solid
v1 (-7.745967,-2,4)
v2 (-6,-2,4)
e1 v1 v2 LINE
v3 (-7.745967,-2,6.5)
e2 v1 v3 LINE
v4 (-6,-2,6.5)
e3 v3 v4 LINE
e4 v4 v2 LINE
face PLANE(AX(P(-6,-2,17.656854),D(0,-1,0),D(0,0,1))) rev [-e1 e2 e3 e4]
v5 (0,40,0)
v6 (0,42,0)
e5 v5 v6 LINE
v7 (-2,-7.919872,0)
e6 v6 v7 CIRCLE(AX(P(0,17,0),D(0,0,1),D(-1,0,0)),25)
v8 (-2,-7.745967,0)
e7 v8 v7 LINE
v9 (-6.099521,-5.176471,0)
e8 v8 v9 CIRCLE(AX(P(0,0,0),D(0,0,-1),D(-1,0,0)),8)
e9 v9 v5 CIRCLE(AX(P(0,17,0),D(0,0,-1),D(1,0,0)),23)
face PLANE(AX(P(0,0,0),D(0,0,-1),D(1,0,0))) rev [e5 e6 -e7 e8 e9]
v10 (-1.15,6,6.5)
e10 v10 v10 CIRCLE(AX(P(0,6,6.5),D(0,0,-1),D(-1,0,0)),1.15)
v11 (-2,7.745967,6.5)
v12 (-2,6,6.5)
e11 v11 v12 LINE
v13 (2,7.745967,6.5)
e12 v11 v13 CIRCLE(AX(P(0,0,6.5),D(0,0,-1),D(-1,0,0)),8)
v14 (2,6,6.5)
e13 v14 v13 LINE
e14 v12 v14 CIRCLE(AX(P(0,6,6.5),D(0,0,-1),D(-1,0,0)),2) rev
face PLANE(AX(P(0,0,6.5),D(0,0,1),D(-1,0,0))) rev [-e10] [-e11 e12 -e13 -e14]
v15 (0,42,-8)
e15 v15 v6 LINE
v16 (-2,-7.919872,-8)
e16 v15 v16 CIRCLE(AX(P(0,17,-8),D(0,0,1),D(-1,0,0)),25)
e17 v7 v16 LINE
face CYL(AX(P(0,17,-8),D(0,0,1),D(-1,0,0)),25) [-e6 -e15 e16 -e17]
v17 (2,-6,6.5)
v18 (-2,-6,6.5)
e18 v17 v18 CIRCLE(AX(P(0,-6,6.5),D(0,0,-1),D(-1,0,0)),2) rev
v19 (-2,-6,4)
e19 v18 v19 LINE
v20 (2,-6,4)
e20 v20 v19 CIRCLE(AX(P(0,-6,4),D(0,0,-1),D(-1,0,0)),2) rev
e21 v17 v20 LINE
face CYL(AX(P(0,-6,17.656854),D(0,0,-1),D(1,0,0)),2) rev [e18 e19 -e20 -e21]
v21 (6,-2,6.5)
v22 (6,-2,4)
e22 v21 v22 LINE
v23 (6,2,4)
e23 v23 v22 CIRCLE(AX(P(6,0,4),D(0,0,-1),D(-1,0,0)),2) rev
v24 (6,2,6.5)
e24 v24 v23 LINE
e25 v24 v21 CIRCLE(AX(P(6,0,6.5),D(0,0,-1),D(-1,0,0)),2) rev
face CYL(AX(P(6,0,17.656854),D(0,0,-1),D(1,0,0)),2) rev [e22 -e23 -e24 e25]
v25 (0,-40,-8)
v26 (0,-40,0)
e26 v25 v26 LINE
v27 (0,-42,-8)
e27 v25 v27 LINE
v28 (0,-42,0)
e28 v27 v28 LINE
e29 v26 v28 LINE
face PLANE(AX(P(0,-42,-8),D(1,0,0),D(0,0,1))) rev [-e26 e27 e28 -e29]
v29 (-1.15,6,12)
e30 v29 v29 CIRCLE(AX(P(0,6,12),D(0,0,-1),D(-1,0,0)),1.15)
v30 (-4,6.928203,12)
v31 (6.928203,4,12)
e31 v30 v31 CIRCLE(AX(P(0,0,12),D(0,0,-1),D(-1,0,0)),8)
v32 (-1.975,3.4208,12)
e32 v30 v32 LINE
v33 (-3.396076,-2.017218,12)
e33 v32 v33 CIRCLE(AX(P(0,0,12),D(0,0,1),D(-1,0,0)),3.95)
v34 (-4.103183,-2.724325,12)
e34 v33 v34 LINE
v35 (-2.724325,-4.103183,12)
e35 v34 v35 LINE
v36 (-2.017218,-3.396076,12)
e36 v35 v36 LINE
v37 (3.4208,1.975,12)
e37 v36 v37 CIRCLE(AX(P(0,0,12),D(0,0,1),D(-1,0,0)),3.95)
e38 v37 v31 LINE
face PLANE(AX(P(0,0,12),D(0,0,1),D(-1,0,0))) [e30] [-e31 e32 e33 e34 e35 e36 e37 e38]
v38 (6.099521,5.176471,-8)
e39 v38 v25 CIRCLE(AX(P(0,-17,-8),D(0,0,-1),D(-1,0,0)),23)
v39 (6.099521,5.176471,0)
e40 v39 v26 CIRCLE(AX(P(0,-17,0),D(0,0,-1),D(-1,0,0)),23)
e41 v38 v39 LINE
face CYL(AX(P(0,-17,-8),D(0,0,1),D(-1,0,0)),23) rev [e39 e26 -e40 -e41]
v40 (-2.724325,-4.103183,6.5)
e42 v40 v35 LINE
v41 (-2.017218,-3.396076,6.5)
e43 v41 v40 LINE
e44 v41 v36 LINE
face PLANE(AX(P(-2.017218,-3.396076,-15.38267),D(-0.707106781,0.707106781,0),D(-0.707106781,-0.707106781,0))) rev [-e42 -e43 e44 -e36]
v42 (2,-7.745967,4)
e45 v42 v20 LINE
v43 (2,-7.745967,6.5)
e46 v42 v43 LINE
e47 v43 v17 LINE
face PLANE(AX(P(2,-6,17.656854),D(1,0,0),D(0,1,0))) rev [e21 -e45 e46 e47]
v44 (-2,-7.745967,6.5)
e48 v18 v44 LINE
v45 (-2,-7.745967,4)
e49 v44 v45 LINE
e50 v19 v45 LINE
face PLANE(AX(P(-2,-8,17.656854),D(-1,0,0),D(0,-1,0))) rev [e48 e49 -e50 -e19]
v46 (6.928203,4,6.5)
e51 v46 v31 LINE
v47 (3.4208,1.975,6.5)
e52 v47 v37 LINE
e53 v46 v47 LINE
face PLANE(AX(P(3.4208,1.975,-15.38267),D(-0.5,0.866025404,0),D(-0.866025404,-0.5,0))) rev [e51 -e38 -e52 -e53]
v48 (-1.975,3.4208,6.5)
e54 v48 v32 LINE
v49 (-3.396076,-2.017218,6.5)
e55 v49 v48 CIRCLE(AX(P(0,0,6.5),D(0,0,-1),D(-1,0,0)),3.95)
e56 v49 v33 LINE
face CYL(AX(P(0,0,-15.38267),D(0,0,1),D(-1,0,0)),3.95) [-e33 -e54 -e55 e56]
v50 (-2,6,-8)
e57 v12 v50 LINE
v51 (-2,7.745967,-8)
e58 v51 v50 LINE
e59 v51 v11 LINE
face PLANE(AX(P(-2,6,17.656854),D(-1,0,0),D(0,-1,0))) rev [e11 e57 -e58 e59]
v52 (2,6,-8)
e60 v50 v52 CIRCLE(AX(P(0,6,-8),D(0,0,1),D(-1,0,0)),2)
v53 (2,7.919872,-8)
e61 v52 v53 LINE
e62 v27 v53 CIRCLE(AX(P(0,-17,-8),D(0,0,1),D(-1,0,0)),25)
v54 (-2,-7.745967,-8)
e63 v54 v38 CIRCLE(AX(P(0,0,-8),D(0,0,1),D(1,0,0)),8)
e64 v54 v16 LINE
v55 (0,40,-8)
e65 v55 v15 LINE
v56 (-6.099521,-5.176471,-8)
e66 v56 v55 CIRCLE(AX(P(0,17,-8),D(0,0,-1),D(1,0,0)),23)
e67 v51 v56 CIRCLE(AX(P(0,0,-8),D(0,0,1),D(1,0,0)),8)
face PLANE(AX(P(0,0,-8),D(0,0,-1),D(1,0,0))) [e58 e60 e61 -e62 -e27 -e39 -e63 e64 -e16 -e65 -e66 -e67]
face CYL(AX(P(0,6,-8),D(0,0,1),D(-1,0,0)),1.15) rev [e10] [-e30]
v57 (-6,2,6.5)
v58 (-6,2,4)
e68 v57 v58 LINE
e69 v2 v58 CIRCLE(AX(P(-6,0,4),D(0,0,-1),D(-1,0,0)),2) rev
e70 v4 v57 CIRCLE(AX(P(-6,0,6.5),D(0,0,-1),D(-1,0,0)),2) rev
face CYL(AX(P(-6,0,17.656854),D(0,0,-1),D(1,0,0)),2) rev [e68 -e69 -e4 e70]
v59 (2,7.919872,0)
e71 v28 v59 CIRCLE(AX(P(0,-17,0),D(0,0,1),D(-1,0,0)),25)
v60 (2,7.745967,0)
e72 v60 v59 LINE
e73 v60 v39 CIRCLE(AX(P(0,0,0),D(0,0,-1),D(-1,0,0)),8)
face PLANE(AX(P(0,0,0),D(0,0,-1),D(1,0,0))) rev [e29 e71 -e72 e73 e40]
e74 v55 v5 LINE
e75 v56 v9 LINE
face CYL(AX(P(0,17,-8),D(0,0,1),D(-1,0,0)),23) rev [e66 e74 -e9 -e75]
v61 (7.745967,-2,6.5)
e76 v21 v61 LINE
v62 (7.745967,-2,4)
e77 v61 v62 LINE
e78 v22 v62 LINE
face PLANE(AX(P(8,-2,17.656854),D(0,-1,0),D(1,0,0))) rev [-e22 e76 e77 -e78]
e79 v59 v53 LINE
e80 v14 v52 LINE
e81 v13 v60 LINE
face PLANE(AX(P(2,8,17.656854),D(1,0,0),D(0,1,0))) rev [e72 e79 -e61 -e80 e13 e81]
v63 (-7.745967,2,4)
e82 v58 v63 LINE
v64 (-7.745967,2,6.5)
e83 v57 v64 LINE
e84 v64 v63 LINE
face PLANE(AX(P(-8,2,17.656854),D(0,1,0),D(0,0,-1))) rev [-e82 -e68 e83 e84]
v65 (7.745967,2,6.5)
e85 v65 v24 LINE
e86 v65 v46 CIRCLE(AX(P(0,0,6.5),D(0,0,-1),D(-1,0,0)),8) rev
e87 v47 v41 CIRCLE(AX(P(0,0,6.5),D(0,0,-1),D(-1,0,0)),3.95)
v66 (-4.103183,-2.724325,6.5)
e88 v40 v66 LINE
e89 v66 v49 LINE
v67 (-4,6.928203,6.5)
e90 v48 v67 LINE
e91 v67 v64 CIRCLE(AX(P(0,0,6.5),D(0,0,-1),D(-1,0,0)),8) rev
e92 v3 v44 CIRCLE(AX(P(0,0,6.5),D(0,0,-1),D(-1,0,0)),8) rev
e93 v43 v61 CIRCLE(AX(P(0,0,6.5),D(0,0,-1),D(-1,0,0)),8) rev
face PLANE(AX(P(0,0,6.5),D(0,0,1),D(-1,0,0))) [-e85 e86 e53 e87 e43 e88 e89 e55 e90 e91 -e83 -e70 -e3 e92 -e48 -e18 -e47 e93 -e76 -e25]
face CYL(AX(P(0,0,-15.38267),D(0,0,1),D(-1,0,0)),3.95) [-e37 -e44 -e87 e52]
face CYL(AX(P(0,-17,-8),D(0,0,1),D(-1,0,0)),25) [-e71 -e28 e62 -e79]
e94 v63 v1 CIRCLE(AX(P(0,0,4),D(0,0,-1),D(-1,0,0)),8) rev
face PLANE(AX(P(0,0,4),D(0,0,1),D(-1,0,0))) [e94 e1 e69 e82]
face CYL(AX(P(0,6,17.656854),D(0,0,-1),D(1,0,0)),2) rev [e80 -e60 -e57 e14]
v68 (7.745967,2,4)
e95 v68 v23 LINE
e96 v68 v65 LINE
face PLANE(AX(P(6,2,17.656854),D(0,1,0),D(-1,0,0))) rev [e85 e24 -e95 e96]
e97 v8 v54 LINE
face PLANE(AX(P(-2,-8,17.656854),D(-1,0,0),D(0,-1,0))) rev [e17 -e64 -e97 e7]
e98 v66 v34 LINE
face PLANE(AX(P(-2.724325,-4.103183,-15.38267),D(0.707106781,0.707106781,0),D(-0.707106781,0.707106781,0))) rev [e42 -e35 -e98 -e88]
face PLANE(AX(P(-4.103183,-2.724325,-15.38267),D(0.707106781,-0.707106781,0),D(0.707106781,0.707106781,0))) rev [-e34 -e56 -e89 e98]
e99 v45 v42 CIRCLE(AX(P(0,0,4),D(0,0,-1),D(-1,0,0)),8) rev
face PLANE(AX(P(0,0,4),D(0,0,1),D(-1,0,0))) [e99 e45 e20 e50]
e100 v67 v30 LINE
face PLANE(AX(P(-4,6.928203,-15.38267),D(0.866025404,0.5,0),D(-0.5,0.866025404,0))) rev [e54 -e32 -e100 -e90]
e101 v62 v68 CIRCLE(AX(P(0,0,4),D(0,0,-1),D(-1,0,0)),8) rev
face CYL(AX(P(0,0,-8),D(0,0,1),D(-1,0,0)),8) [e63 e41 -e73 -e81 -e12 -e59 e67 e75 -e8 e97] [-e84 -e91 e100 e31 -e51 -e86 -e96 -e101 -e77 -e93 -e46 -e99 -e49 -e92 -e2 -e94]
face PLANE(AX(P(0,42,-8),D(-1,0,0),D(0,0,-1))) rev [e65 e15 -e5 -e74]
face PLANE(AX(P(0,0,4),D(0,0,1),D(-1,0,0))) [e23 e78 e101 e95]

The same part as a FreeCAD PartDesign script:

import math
import FreeCAD as App
import Part
import Sketcher

V = App.Vector
Q = App.Units.Quantity

doc = App.newDocument("Part")
body = doc.addObject("PartDesign::Body", "Body")

# Sketch on XY plane
sketch1 = body.newObject("Sketcher::SketchObject", "Sketch")
sketch1.AttachmentSupport = (doc.getObject("XY_Plane"), [""])
sketch1.MapMode = "FlatFace"
sketch1.addGeometry([
    Part.LineSegment(V(0, -40, 0), V(0, -42, 0)),  # 0
    Part.ArcOfCircle(Part.Circle(V(0, -17, 0), V(0, 0, 1), 25), math.radians(-90), math.radians(90)),  # 1
    Part.ArcOfCircle(Part.Circle(V(0, 0, 0), V(0, 0, 1), 8), math.radians(90), math.radians(220)),  # 2
    Part.ArcOfCircle(Part.Circle(V(0, 17, 0), V(0, 0, 1), 23), math.radians(90), math.radians(255)),  # 3
    Part.LineSegment(V(0, 40, 0), V(0, 42, 0)),  # 4
    Part.ArcOfCircle(Part.Circle(V(0, 17, 0), V(0, 0, 1), 25), math.radians(90), math.radians(270)),  # 5
    Part.ArcOfCircle(Part.Circle(V(0, 0, 0), V(0, 0, 1), 8), math.radians(-90), math.radians(40)),  # 6
    Part.ArcOfCircle(Part.Circle(V(0, -17, 0), V(0, 0, 1), 23), math.radians(-90), math.radians(75)),  # 7
    Part.Circle(V(0, -6, 0), V(0, 0, 1), 1.1),  # 8
    Part.Circle(V(6, 0, 0), V(0, 0, 1), 1.1),  # 9
    Part.Circle(V(-6, 0, 0), V(0, 0, 1), 1.1),  # 10
    Part.Circle(V(0, 6, 0), V(0, 0, 1), 1.1),  # 11
], False)
sketch1.addConstraint([
    Sketcher.Constraint("Coincident", 0, 2, 1, 1),
    Sketcher.Constraint("Tangent", 1, 2, 2, 1),
    Sketcher.Constraint("Coincident", 2, 2, 3, 2),
    Sketcher.Constraint("Coincident", 3, 1, 4, 1),
    Sketcher.Constraint("Coincident", 4, 2, 5, 1),
    Sketcher.Constraint("Tangent", 5, 2, 6, 1),
    Sketcher.Constraint("Coincident", 6, 2, 7, 2),
    Sketcher.Constraint("Coincident", 7, 1, 0, 1),
    Sketcher.Constraint("Vertical", 0),
    Sketcher.Constraint("Vertical", 4),
    Sketcher.Constraint("Coincident", 2, 3, -1, 1),
    Sketcher.Constraint("Coincident", 6, 3, -1, 1),
    Sketcher.Constraint("Coincident", 5, 3, 3, 3),
    Sketcher.Constraint("Coincident", 7, 3, 1, 3),
    Sketcher.Constraint("Equal", 1, 5),
    Sketcher.Constraint("Equal", 2, 6),
    Sketcher.Constraint("Equal", 3, 7),
    Sketcher.Constraint("Equal", 8, 9),
    Sketcher.Constraint("Equal", 9, 10),
    Sketcher.Constraint("Equal", 10, 11),
    Sketcher.Constraint("Symmetric", 9, 3, 10, 3, -1, 1),
    Sketcher.Constraint("Symmetric", 8, 3, 11, 3, -1, 1),
    Sketcher.Constraint("PointOnObject", 1, 3, -2),
    Sketcher.Constraint("PointOnObject", 3, 3, -2),
    Sketcher.Constraint("PointOnObject", 8, 3, -2),
    Sketcher.Constraint("PointOnObject", 9, 3, -1),
    Sketcher.Constraint("PointOnObject", 0, 2, -2),
    Sketcher.Constraint("PointOnObject", 3, 1, -2),
    Sketcher.Constraint("Radius", 1, 25.0),
    Sketcher.Constraint("Radius", 2, 8.0),
    Sketcher.Constraint("Radius", 3, 23.0),
    Sketcher.Constraint("Diameter", 8, 2.3),
    Sketcher.Constraint("DistanceY", 8, 3, -1, 1, 6.0),
    Sketcher.Constraint("DistanceX", -1, 1, 9, 3, 6.0),
])
pad1 = body.newObject("PartDesign::Pad", "Pad")
pad1.Profile = sketch1
pad1.Length = 8

# Sketch on XY plane
sketch2 = body.newObject("Sketcher::SketchObject", "Sketch001")
sketch2.AttachmentSupport = (doc.getObject("XY_Plane"), [""])
sketch2.MapMode = "FlatFace"
sketch2.addGeometry([
    Part.Circle(V(0, 0, 0), V(0, 0, 1), 8),  # 0
    Part.Circle(V(0, -6, 0), V(0, 0, 1), 1.1),  # 1
    Part.Circle(V(6, 0, 0), V(0, 0, 1), 1.1),  # 2
    Part.Circle(V(0, 6, 0), V(0, 0, 1), 1.1),  # 3
    Part.Circle(V(-6, 0, 0), V(0, 0, 1), 1.1),  # 4
], False)
sketch2.addConstraint([
    Sketcher.Constraint("Coincident", 0, 3, -1, 1),
    Sketcher.Constraint("Equal", 1, 2),
    Sketcher.Constraint("Equal", 2, 3),
    Sketcher.Constraint("Equal", 3, 4),
    Sketcher.Constraint("Symmetric", 1, 3, 3, 3, -1, 1),
    Sketcher.Constraint("Symmetric", 2, 3, 4, 3, -1, 1),
    Sketcher.Constraint("PointOnObject", 1, 3, -2),
    Sketcher.Constraint("PointOnObject", 2, 3, -1),
    Sketcher.Constraint("Diameter", 0, 16.0),
    Sketcher.Constraint("Diameter", 1, 2.3),
    Sketcher.Constraint("DistanceY", 1, 3, -1, 1, 6.0),
    Sketcher.Constraint("DistanceX", -1, 1, 2, 3, 6.0),
])
pad2 = body.newObject("PartDesign::Pad", "Pad001")
pad2.Profile = sketch2
pad2.Length = 12
pad2.Reversed = True

# Sketch on XY plane
sketch3 = body.newObject("Sketcher::SketchObject", "Sketch002")
sketch3.AttachmentSupport = (doc.getObject("XY_Plane"), [""])
sketch3.MapMode = "FlatFace"
sketch3.AttachmentOffset = App.Placement(V(0, 0, 8), App.Rotation())
sketch3.addGeometry([
    Part.LineSegment(V(8, 2, 0), V(6, 2, 0)),  # 0
    Part.ArcOfCircle(Part.Circle(V(6, 0, 0), V(0, 0, 1), 2), math.radians(90), math.radians(270)),  # 1
    Part.LineSegment(V(6, -2, 0), V(8, -2, 0)),  # 2
    Part.LineSegment(V(8, -2, 0), V(8, 2, 0)),  # 3
    Part.LineSegment(V(2, -8, 0), V(2, -6, 0)),  # 4
    Part.ArcOfCircle(Part.Circle(V(0, -6, 0), V(0, 0, 1), 2), math.radians(0), math.radians(180)),  # 5
    Part.LineSegment(V(-2, -6, 0), V(-2, -8, 0)),  # 6
    Part.LineSegment(V(-2, -8, 0), V(2, -8, 0)),  # 7
    Part.LineSegment(V(-8, -2, 0), V(-6, -2, 0)),  # 8
    Part.ArcOfCircle(Part.Circle(V(-6, 0, 0), V(0, 0, 1), 2), math.radians(-90), math.radians(90)),  # 9
    Part.LineSegment(V(-6, 2, 0), V(-8, 2, 0)),  # 10
    Part.LineSegment(V(-8, 2, 0), V(-8, -2, 0)),  # 11
    Part.LineSegment(V(-2, 8, 0), V(-2, 6, 0)),  # 12
    Part.ArcOfCircle(Part.Circle(V(0, 6, 0), V(0, 0, 1), 2), math.radians(180), math.radians(360)),  # 13
    Part.LineSegment(V(2, 6, 0), V(2, 8, 0)),  # 14
    Part.LineSegment(V(2, 8, 0), V(-2, 8, 0)),  # 15
], False)
sketch3.addConstraint([
    Sketcher.Constraint("Tangent", 0, 2, 1, 1),
    Sketcher.Constraint("Tangent", 1, 2, 2, 1),
    Sketcher.Constraint("Coincident", 2, 2, 3, 1),
    Sketcher.Constraint("Coincident", 3, 2, 0, 1),
    Sketcher.Constraint("Tangent", 4, 2, 5, 1),
    Sketcher.Constraint("Tangent", 5, 2, 6, 1),
    Sketcher.Constraint("Coincident", 6, 2, 7, 1),
    Sketcher.Constraint("Coincident", 7, 2, 4, 1),
    Sketcher.Constraint("Tangent", 8, 2, 9, 1),
    Sketcher.Constraint("Tangent", 9, 2, 10, 1),
    Sketcher.Constraint("Coincident", 10, 2, 11, 1),
    Sketcher.Constraint("Coincident", 11, 2, 8, 1),
    Sketcher.Constraint("Tangent", 12, 2, 13, 1),
    Sketcher.Constraint("Tangent", 13, 2, 14, 1),
    Sketcher.Constraint("Coincident", 14, 2, 15, 1),
    Sketcher.Constraint("Coincident", 15, 2, 12, 1),
    Sketcher.Constraint("Horizontal", 0),
    Sketcher.Constraint("Horizontal", 2),
    Sketcher.Constraint("Vertical", 3),
    Sketcher.Constraint("Vertical", 4),
    Sketcher.Constraint("Vertical", 6),
    Sketcher.Constraint("Horizontal", 7),
    Sketcher.Constraint("Horizontal", 8),
    Sketcher.Constraint("Horizontal", 10),
    Sketcher.Constraint("Vertical", 11),
    Sketcher.Constraint("Vertical", 12),
    Sketcher.Constraint("Vertical", 14),
    Sketcher.Constraint("Horizontal", 15),
    Sketcher.Constraint("Equal", 1, 5),
    Sketcher.Constraint("Equal", 5, 9),
    Sketcher.Constraint("Equal", 9, 13),
    Sketcher.Constraint("Symmetric", 1, 3, 9, 3, -1, 1),
    Sketcher.Constraint("Symmetric", 5, 3, 13, 3, -1, 1),
    Sketcher.Constraint("Symmetric", 3, 2, 10, 2, -2),
    Sketcher.Constraint("Symmetric", 7, 2, 14, 2, -1),
    Sketcher.Constraint("Equal", 10, 4),
    Sketcher.Constraint("Radius", 1, 2.0),
    Sketcher.Constraint("DistanceX", 0, 2, 0, 1, 2.0),
    Sketcher.Constraint("DistanceX", -1, 1, 1, 3, 6.0),
    Sketcher.Constraint("DistanceY", 5, 3, -1, 1, 6.0),
])
pocket1 = body.newObject("PartDesign::Pocket", "Pocket")
pocket1.Profile = sketch3
pocket1.Length = 14.5

# Sketch on XY plane
sketch4 = body.newObject("Sketcher::SketchObject", "Sketch003")
sketch4.AttachmentSupport = (doc.getObject("XY_Plane"), [""])
sketch4.MapMode = "FlatFace"
sketch4.AttachmentOffset = App.Placement(V(0, 0, -12), App.Rotation())
sketch4.addGeometry([
    Part.LineSegment(V(3.4, 2, 0), V(6.9, 4, 0)),  # 0
    Part.ArcOfCircle(Part.Circle(V(0, 0, 0), V(0, 0, 1), 8), math.radians(120), math.radians(390)),  # 1
    Part.LineSegment(V(-4, 6.9, 0), V(-2, 3.4, 0)),  # 2
    Part.ArcOfCircle(Part.Circle(V(0, 0, 0), V(0, 0, 1), 4), math.radians(120), math.radians(211)),  # 3
    Part.LineSegment(V(-3.4, -2, 0), V(-4.1, -2.7, 0)),  # 4
    Part.LineSegment(V(-4.1, -2.7, 0), V(-2.7, -4.1, 0)),  # 5
    Part.LineSegment(V(-2.7, -4.1, 0), V(-2, -3.4, 0)),  # 6
    Part.ArcOfCircle(Part.Circle(V(0, 0, 0), V(0, 0, 1), 4), math.radians(-121), math.radians(30)),  # 7
], False)
sketch4.addConstraint([
    Sketcher.Constraint("Coincident", 0, 2, 1, 2),
    Sketcher.Constraint("Coincident", 1, 1, 2, 1),
    Sketcher.Constraint("Coincident", 2, 2, 3, 1),
    Sketcher.Constraint("Coincident", 3, 2, 4, 1),
    Sketcher.Constraint("Coincident", 4, 2, 5, 1),
    Sketcher.Constraint("Coincident", 5, 2, 6, 1),
    Sketcher.Constraint("Coincident", 6, 2, 7, 1),
    Sketcher.Constraint("Coincident", 7, 2, 0, 1),
    Sketcher.Constraint("Coincident", 1, 3, -1, 1),
    Sketcher.Constraint("Coincident", 3, 3, -1, 1),
    Sketcher.Constraint("Coincident", 7, 3, -1, 1),
    Sketcher.Constraint("Equal", 3, 7),
    Sketcher.Constraint("Perpendicular", 0, 2),
    Sketcher.Constraint("Perpendicular", 4, 5),
    Sketcher.Constraint("Perpendicular", 5, 6),
    Sketcher.Constraint("Equal", 4, 6),
    Sketcher.Constraint("Radius", 1, 8.0),
    Sketcher.Constraint("Angle", 0, Q("30 deg")),
    Sketcher.Constraint("Angle", 4, Q("-135 deg")),
    Sketcher.Constraint("Radius", 3, 3.95),
    Sketcher.Constraint("Distance", 4, 1.0),
    Sketcher.Constraint("DistanceY", -1, 1, 0, 2, 4.0),
    Sketcher.Constraint("DistanceX", 1, 1, -1, 1, 4.0),
    Sketcher.Constraint("Distance", 5, 1.95),
])
pocket2 = body.newObject("PartDesign::Pocket", "Pocket001")
pocket2.Profile = sketch4
pocket2.Length = 5.5
pocket2.Reversed = True

# Sketch on XY plane
sketch5 = body.newObject("Sketcher::SketchObject", "Sketch004")
sketch5.AttachmentSupport = (doc.getObject("XY_Plane"), [""])
sketch5.MapMode = "FlatFace"
sketch5.AttachmentOffset = App.Placement(V(0, 0, 8), App.Rotation())
sketch5.addGeometry([
    Part.LineSegment(V(6, 6, 0), V(0, 0, 0)),
    Part.LineSegment(V(0, 0, 0), V(-6, 6, 0)),
    Part.ArcOfCircle(Part.Circle(V(0, 0, 0), V(0, 0, 1), 8), math.radians(135), math.radians(405)),
], False)
sketch5.addConstraint([
    Sketcher.Constraint("Coincident", 0, 2, 1, 1),
    Sketcher.Constraint("Coincident", 1, 2, 2, 1),
    Sketcher.Constraint("Coincident", 2, 2, 0, 1),
    Sketcher.Constraint("Coincident", 2, 3, -1, 1),
    Sketcher.Constraint("Coincident", 0, 2, -1, 1),
    Sketcher.Constraint("Perpendicular", 0, 1),
    Sketcher.Constraint("Horizontal", 1, 2, 2, 2),
    Sketcher.Constraint("Radius", 2, 8.0),
])
pad3 = body.newObject("PartDesign::Pad", "Pad002")
pad3.Profile = sketch5
pad3.Length = 12
pad3.Reversed = True
body2 = doc.addObject("PartDesign::Body", "Body001")
doc.recompute()

mirroring = doc.addObject("Part::Mirroring", "Mirroring")
mirroring.Source = body
mirroring.Base = V(0, 0, 0)
mirroring.Normal = V(0, 0, 1)
body2.BaseFeature = mirroring
doc.recompute()
body.Visibility = False
mirroring.Visibility = False

doc.recompute()
